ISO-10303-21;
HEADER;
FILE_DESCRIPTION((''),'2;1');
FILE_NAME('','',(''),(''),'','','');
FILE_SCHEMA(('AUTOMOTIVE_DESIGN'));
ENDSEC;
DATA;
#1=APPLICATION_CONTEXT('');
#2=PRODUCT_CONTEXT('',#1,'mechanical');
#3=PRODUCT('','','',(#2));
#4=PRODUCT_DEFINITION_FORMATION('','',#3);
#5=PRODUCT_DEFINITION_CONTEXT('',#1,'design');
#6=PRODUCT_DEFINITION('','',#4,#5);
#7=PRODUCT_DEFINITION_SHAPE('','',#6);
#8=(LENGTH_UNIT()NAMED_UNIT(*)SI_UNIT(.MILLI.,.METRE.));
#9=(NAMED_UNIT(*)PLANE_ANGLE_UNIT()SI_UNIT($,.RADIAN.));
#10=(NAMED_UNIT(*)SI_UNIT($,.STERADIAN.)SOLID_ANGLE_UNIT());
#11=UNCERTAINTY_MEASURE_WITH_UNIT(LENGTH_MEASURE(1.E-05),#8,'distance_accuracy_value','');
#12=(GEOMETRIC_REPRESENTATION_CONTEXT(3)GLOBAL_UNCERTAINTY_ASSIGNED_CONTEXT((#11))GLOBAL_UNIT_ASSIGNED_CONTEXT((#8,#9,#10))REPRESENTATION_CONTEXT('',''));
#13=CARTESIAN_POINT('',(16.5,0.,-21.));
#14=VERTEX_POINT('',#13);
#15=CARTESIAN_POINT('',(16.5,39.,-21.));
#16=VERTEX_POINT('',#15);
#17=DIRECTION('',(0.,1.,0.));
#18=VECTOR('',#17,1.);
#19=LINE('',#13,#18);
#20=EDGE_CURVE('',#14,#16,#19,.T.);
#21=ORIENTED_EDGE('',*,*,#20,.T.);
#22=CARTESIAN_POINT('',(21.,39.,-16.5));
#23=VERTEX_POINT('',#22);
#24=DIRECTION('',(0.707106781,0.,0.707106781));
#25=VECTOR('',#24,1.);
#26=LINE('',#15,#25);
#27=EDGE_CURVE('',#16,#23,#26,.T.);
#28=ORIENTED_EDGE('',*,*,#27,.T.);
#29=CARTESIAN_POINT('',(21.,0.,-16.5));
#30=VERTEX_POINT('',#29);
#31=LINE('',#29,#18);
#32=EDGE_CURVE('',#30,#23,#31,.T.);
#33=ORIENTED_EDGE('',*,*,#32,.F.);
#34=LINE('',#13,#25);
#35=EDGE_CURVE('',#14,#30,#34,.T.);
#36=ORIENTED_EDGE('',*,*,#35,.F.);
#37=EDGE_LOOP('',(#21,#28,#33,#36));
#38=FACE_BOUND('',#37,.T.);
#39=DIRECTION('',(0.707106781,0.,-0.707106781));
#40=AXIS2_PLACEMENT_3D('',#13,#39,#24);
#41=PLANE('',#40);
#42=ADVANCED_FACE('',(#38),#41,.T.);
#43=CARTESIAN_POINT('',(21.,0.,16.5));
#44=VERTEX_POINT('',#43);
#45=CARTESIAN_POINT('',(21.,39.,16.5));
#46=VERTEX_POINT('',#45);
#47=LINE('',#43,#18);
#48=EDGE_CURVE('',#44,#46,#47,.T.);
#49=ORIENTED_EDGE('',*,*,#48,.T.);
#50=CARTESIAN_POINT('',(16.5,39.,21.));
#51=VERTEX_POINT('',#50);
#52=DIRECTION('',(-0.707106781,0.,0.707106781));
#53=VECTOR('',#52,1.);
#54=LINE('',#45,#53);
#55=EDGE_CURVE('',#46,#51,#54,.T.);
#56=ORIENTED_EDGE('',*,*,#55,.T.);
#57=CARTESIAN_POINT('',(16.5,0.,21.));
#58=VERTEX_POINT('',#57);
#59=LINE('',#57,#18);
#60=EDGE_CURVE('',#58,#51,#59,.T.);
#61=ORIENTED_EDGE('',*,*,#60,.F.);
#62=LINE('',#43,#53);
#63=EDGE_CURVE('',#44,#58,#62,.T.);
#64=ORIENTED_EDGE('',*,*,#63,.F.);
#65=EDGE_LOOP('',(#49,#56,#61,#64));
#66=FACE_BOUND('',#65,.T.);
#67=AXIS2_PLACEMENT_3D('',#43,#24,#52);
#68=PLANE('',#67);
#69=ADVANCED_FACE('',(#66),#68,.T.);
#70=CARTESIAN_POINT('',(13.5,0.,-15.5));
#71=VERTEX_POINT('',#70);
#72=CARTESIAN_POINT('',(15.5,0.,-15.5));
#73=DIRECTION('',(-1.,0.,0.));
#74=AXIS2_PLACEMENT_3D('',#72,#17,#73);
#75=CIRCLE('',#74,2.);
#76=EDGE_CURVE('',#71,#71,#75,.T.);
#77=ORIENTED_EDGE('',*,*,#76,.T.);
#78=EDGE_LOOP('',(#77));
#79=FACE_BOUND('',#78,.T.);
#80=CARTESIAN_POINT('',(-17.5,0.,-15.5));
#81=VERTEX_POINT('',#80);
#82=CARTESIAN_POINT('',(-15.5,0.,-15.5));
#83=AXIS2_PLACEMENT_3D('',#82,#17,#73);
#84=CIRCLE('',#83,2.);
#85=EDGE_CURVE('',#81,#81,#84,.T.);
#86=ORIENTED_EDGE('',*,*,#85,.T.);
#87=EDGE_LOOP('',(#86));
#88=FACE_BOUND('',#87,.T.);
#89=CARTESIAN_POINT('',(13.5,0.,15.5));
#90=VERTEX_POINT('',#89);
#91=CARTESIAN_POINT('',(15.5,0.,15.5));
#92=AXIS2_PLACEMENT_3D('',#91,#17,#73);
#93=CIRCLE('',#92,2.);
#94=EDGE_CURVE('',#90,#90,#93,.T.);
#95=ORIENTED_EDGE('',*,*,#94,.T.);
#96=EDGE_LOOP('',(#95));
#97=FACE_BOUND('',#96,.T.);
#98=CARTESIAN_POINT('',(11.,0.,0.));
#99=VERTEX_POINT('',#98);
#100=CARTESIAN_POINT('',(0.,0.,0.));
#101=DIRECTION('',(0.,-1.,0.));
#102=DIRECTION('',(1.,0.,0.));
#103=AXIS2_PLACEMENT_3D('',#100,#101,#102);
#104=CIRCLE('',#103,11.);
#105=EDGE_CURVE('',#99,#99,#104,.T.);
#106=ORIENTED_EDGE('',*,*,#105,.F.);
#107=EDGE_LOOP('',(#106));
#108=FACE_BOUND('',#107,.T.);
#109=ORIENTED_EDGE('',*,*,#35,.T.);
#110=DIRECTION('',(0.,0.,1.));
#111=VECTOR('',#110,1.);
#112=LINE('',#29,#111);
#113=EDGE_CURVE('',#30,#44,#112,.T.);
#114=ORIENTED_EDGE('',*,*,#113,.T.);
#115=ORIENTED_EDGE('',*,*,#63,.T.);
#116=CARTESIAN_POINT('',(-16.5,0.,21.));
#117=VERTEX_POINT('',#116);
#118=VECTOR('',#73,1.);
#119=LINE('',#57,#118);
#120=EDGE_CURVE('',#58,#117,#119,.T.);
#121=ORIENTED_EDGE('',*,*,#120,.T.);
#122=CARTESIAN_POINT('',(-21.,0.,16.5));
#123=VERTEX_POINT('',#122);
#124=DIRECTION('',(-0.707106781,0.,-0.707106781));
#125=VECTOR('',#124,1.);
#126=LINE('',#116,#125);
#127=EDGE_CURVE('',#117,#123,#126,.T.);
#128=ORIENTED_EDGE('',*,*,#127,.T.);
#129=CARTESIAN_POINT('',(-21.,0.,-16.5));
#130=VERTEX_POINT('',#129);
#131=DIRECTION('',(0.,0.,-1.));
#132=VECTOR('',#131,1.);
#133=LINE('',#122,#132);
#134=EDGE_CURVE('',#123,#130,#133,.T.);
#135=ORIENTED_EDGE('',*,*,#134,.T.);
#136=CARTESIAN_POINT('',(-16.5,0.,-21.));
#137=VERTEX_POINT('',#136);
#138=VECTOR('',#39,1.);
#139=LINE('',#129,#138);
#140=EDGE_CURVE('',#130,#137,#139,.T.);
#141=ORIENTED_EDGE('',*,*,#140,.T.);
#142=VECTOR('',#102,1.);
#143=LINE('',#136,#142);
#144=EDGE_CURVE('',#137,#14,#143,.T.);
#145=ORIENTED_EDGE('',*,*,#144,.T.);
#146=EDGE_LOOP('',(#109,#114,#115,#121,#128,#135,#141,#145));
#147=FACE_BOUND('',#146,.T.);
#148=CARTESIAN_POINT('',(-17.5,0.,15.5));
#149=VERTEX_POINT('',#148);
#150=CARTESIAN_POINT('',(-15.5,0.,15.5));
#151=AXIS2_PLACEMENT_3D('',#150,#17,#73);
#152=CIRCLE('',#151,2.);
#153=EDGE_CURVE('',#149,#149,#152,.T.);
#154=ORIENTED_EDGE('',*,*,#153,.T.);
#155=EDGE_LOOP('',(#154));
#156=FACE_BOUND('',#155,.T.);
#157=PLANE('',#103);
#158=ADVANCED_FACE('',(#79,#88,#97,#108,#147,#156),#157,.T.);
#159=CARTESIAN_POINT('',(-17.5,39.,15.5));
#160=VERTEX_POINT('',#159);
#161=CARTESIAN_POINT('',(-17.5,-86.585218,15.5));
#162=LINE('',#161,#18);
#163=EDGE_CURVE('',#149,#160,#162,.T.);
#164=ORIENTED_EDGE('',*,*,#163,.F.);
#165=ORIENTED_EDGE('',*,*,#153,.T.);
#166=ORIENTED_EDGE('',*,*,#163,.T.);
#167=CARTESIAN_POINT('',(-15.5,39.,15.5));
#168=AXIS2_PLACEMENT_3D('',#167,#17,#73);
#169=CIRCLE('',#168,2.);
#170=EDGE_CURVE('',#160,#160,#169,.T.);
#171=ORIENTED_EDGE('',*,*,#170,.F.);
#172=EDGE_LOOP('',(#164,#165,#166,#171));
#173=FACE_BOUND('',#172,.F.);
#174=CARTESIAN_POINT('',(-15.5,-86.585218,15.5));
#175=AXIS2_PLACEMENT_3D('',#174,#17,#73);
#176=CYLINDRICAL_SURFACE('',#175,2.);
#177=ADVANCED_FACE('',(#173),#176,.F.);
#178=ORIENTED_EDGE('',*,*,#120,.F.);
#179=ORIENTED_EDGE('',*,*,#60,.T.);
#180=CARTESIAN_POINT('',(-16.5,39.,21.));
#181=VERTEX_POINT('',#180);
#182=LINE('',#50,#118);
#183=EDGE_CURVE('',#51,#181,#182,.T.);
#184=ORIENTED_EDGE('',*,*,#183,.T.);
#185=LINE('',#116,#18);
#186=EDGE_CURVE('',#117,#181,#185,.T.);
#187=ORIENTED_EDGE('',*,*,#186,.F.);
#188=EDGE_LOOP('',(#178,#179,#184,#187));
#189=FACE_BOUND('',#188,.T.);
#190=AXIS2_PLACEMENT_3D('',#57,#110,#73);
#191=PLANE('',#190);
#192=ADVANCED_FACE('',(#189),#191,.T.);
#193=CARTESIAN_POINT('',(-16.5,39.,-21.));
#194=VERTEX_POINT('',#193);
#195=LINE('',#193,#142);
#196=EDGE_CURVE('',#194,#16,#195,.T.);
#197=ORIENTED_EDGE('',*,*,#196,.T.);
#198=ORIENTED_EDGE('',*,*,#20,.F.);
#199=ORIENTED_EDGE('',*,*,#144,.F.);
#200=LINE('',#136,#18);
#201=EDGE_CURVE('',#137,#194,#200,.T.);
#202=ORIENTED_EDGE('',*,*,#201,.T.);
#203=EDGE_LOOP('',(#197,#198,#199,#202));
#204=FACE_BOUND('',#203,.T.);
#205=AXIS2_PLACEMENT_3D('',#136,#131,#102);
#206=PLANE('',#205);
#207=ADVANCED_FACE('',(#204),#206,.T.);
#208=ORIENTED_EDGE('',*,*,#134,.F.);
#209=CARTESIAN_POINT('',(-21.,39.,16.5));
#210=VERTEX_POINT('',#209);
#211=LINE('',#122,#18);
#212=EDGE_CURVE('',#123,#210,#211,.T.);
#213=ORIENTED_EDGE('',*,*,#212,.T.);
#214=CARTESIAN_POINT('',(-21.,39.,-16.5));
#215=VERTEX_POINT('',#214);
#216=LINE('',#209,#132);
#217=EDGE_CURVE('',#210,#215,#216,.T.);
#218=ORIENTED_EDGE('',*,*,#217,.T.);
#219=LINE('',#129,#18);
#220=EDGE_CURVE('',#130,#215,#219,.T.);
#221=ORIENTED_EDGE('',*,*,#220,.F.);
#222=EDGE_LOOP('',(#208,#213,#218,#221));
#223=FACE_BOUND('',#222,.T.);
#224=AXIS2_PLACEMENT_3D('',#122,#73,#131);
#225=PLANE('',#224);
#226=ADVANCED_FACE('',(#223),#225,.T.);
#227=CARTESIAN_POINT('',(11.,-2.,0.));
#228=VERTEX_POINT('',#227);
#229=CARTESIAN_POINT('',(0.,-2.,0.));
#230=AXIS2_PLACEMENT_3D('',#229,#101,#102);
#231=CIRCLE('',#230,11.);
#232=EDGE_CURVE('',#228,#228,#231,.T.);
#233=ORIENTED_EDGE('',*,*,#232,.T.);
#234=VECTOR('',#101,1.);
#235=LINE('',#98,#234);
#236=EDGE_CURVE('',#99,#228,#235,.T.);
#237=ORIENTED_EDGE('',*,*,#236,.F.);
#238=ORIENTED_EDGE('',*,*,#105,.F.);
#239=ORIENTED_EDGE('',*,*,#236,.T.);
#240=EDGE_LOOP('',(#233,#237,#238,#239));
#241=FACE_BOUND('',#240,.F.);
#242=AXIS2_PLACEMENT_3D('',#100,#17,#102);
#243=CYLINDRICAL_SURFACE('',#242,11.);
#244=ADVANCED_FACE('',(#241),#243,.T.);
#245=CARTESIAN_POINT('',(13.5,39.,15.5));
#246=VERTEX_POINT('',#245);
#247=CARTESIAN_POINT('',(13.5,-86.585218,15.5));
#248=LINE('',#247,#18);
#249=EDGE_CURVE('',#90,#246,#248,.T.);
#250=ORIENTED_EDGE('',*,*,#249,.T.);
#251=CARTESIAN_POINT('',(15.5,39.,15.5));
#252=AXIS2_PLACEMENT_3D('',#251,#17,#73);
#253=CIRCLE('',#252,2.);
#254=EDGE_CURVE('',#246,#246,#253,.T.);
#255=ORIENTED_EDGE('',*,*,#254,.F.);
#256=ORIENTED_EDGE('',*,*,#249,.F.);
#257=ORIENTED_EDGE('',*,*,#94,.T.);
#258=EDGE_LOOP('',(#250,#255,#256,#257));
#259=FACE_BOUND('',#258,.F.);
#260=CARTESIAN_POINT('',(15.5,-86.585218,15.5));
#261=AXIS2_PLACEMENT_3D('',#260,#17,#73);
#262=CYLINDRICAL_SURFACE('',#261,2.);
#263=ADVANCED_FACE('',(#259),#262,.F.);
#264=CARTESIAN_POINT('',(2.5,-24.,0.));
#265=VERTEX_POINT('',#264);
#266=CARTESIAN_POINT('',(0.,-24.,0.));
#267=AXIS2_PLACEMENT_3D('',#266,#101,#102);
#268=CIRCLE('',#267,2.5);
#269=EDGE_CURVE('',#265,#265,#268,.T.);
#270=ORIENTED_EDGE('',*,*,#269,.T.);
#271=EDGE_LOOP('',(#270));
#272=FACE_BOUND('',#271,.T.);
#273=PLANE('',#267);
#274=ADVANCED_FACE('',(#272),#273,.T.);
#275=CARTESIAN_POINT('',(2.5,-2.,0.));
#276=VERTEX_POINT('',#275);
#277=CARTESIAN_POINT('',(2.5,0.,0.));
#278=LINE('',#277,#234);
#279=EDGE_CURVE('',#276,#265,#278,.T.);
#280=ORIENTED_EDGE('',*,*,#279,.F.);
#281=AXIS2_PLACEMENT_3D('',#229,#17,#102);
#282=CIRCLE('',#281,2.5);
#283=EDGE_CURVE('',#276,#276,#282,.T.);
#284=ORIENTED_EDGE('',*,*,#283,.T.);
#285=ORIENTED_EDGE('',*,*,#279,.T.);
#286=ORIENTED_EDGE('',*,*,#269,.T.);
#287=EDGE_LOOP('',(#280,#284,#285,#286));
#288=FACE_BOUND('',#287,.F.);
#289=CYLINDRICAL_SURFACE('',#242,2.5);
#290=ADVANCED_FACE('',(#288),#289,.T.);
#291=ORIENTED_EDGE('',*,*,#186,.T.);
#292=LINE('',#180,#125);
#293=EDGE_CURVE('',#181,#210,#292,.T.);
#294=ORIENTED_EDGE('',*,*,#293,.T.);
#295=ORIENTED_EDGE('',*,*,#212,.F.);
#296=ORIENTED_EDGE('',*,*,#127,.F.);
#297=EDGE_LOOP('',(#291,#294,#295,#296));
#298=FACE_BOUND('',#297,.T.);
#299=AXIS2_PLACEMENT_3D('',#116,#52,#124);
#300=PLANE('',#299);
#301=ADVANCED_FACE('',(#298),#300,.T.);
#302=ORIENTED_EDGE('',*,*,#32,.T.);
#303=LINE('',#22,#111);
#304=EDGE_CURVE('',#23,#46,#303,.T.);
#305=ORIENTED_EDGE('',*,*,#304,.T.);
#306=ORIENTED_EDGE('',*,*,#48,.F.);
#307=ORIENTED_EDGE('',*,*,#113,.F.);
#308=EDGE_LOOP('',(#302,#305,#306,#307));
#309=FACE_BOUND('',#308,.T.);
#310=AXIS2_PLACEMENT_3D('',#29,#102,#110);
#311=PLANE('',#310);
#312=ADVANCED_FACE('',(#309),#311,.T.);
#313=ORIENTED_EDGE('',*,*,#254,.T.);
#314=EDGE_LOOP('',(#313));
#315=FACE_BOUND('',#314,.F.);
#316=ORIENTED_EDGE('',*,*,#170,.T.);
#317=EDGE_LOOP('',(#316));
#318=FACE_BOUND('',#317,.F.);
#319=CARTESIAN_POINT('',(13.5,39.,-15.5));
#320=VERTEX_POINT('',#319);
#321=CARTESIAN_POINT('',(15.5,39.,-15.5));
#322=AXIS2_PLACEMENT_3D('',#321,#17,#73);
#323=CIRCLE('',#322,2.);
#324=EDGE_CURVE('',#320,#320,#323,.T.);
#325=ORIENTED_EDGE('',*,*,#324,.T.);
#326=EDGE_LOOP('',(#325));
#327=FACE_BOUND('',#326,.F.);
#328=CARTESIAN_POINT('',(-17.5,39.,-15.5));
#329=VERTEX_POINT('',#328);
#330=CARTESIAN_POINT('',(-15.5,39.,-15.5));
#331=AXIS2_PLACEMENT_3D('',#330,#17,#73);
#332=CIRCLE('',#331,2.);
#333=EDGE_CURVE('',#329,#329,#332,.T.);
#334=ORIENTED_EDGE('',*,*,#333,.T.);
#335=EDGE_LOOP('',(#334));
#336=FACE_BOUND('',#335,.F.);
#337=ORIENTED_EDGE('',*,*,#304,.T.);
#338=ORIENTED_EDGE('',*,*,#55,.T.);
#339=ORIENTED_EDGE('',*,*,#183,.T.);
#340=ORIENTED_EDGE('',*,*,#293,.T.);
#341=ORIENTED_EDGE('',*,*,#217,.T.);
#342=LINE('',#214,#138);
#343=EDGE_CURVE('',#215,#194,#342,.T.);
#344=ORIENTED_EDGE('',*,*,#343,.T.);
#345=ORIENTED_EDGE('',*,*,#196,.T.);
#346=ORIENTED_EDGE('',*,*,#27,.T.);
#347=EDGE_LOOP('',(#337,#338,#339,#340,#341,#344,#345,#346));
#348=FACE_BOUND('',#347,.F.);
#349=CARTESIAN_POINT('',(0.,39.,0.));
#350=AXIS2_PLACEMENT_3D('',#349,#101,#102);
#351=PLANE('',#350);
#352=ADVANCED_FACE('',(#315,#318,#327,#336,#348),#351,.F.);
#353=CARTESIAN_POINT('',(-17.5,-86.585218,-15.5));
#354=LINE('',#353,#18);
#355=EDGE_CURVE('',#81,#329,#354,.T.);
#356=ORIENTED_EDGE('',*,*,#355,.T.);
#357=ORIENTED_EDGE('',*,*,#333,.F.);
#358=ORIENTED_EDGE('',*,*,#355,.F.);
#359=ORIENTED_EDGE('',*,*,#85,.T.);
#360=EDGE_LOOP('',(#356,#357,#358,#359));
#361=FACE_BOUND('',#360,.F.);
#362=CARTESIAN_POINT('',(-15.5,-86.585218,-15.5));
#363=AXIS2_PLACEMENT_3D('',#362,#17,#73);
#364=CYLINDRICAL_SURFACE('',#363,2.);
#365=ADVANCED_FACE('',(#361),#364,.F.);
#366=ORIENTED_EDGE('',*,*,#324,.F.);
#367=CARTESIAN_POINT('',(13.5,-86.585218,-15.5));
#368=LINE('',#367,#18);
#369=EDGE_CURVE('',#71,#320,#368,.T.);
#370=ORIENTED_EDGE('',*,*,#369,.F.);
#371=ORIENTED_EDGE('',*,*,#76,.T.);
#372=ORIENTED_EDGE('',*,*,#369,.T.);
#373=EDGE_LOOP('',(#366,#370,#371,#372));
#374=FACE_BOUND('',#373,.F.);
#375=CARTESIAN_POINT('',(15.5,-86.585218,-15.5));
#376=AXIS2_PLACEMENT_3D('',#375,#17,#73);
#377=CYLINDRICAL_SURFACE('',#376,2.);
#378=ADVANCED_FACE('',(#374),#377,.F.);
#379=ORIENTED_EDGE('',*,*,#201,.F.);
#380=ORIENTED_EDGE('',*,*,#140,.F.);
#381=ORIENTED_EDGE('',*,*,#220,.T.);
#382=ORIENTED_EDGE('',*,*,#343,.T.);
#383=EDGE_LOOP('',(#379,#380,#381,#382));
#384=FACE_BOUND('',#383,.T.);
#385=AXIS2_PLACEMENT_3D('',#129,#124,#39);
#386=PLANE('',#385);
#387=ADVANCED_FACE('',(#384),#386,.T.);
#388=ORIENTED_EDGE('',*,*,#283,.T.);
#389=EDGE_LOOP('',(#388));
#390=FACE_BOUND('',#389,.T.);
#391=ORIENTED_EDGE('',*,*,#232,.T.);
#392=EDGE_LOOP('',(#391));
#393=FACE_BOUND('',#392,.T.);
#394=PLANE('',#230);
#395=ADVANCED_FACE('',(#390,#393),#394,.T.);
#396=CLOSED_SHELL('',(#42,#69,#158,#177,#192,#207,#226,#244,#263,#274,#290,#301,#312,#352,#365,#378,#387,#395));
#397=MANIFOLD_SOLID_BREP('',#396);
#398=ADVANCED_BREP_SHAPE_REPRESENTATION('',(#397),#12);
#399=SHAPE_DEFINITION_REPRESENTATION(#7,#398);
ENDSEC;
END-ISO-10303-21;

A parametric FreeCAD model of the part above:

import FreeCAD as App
import Part
import Sketcher
Q = App.Units.Quantity

doc = App.newDocument("Part")
body = doc.addObject("PartDesign::Body", "Body")

sketch1 = doc.addObject("Sketcher::SketchObject", "Sketch")
body.addObject(sketch1)
sketch1.AttachmentSupport = (doc.XZ_Plane, [""])
sketch1.MapMode = "FlatFace"
sketch1.addGeometry(Part.Circle(App.Vector(0, 0, 0), App.Vector(0, 0, 1), 2.5), False)
sketch1.addConstraint(Sketcher.Constraint("Coincident", 0, 3, -1, 1))
sketch1.addConstraint(Sketcher.Constraint("Diameter", 0, Q("5 mm")))
pad1 = doc.addObject("PartDesign::Pad", "Pad")
body.addObject(pad1)
pad1.Profile = sketch1
pad1.Length = 24

sketch2 = doc.addObject("Sketcher::SketchObject", "Sketch001")
body.addObject(sketch2)
sketch2.AttachmentSupport = (doc.XZ_Plane, [""])
sketch2.MapMode = "FlatFace"
sketch2.addGeometry(Part.Circle(App.Vector(0, 0, 0), App.Vector(0, 0, 1), 11), False)
sketch2.addConstraint(Sketcher.Constraint("Coincident", 0, 3, -1, 1))
sketch2.addConstraint(Sketcher.Constraint("Diameter", 0, Q("22 mm")))
pad2 = doc.addObject("PartDesign::Pad", "Pad001")
body.addObject(pad2)
pad2.Profile = sketch2
pad2.Length = 2

sketch3 = doc.addObject("Sketcher::SketchObject", "Sketch002")
body.addObject(sketch3)
sketch3.AttachmentSupport = (doc.XZ_Plane, [""])
sketch3.MapMode = "FlatFace"
sketch3.addGeometry(Part.LineSegment(App.Vector(21, 16, 0), App.Vector(16, 21, 0)), False)
sketch3.addGeometry(Part.LineSegment(App.Vector(16, 21, 0), App.Vector(-16, 21, 0)), False)
sketch3.addGeometry(Part.LineSegment(App.Vector(-16, 21, 0), App.Vector(-21, 16, 0)), False)
sketch3.addGeometry(Part.LineSegment(App.Vector(-21, 16, 0), App.Vector(-21, -16, 0)), False)
sketch3.addGeometry(Part.LineSegment(App.Vector(-21, -16, 0), App.Vector(-16, -21, 0)), False)
sketch3.addGeometry(Part.LineSegment(App.Vector(-16, -21, 0), App.Vector(16, -21, 0)), False)
sketch3.addGeometry(Part.LineSegment(App.Vector(16, -21, 0), App.Vector(21, -16, 0)), False)
sketch3.addGeometry(Part.LineSegment(App.Vector(21, -16, 0), App.Vector(21, 16, 0)), False)
sketch3.addConstraint(Sketcher.Constraint("Coincident", 0, 2, 1, 1))
sketch3.addConstraint(Sketcher.Constraint("Coincident", 1, 2, 2, 1))
sketch3.addConstraint(Sketcher.Constraint("Coincident", 2, 2, 3, 1))
sketch3.addConstraint(Sketcher.Constraint("Coincident", 3, 2, 4, 1))
sketch3.addConstraint(Sketcher.Constraint("Coincident", 4, 2, 5, 1))
sketch3.addConstraint(Sketcher.Constraint("Coincident", 5, 2, 6, 1))
sketch3.addConstraint(Sketcher.Constraint("Coincident", 6, 2, 7, 1))
sketch3.addConstraint(Sketcher.Constraint("Coincident", 7, 2, 0, 1))
sketch3.addConstraint(Sketcher.Constraint("Horizontal", 1))
sketch3.addConstraint(Sketcher.Constraint("Vertical", 3))
sketch3.addConstraint(Sketcher.Constraint("Horizontal", 5))
sketch3.addConstraint(Sketcher.Constraint("Vertical", 7))
sketch3.addConstraint(Sketcher.Constraint("Symmetric", 0, 2, 4, 2, -1, 1))
sketch3.addConstraint(Sketcher.Constraint("Symmetric", 2, 2, 6, 2, -1, 1))
sketch3.addConstraint(Sketcher.Constraint("Perpendicular", 0, 2))
sketch3.addConstraint(Sketcher.Constraint("Perpendicular", 2, 4))
sketch3.addConstraint(Sketcher.Constraint("Perpendicular", 4, 6))
sketch3.addConstraint(Sketcher.Constraint("Horizontal", 3, 2, 6, 2))
sketch3.addConstraint(Sketcher.Constraint("Vertical", 1, 2, 4, 2))
sketch3.addConstraint(Sketcher.Constraint("Equal", 5, 3))
sketch3.addConstraint(Sketcher.Constraint("DistanceX", 1, 2, 1, 1, Q("33 mm")))
sketch3.addConstraint(Sketcher.Constraint("DistanceY", -1, 1, 0, 2, Q("21 mm")))
pad3 = doc.addObject("PartDesign::Pad", "Pad002")
body.addObject(pad3)
pad3.Profile = sketch3
pad3.Length = 39
pad3.Reversed = True

sketch4 = doc.addObject("Sketcher::SketchObject", "Sketch003")
body.addObject(sketch4)
sketch4.AttachmentSupport = (doc.XZ_Plane, [""])
sketch4.MapMode = "FlatFace"
sketch4.addGeometry(Part.Circle(App.Vector(-15.5, 15.5, 0), App.Vector(0, 0, 1), 2), False)
sketch4.addGeometry(Part.Circle(App.Vector(15.5, 15.5, 0), App.Vector(0, 0, 1), 2), False)
sketch4.addGeometry(Part.Circle(App.Vector(15.5, -15.5, 0), App.Vector(0, 0, 1), 2), False)
sketch4.addGeometry(Part.Circle(App.Vector(-15.5, -15.5, 0), App.Vector(0, 0, 1), 2), False)
sketch4.addConstraint(Sketcher.Constraint("Equal", 0, 1))
sketch4.addConstraint(Sketcher.Constraint("Equal", 1, 2))
sketch4.addConstraint(Sketcher.Constraint("Equal", 2, 3))
sketch4.addConstraint(Sketcher.Constraint("Symmetric", 0, 3, 2, 3, -1, 1))
sketch4.addConstraint(Sketcher.Constraint("Symmetric", 1, 3, 3, 3, -1, 1))
sketch4.addConstraint(Sketcher.Constraint("Symmetric", 0, 3, 1, 3, -2))
sketch4.addConstraint(Sketcher.Constraint("Diameter", 0, Q("4 mm")))
sketch4.addConstraint(Sketcher.Constraint("DistanceX", 0, 3, 1, 3, Q("31 mm")))
sketch4.addConstraint(Sketcher.Constraint("DistanceY", 2, 3, 1, 3, Q("31 mm")))
doc.recompute()
hole = doc.addObject("PartDesign::Hole", "Hole")
body.addObject(hole)
hole.Profile = sketch4
hole.ThreadType = "None"
hole.Diameter = 4
hole.DepthType = "ThroughAll"

doc.recompute()
